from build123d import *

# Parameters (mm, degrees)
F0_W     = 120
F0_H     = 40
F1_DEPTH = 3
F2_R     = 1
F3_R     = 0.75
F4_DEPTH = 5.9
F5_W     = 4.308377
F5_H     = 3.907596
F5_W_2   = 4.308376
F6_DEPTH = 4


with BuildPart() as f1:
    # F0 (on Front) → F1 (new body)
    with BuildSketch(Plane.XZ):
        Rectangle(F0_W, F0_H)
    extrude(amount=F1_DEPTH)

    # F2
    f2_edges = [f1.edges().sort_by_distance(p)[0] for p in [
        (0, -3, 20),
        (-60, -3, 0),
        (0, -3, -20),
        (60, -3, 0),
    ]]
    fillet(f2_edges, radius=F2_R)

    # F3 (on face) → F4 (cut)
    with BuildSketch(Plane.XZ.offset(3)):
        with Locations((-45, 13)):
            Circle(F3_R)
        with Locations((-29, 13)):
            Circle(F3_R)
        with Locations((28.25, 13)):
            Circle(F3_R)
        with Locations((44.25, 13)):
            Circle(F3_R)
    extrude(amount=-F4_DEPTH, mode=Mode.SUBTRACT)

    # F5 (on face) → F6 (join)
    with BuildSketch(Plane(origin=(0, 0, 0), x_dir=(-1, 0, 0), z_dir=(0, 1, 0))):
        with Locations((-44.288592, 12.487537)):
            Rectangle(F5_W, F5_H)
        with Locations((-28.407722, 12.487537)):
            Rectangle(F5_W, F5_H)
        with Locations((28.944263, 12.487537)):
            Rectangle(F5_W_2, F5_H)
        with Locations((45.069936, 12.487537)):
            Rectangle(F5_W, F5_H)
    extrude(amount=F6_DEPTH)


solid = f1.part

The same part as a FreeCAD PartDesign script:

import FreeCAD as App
import Part
import Sketcher


def edges_at(feature, points):
    """Names of the edges that pass closest to the given points."""
    edges = feature.Shape.Edges
    near = lambda p: min(range(len(edges)), key=lambda i: edges[i].distToShape(Part.Vertex(*p))[0])
    return sorted({f"Edge{near(p) + 1}" for p in points})


def add_polygon(sketch, points):
    """Adds a closed chain of lines whose ends are joined by coincident constraints."""
    first, n = sketch.GeometryCount, len(points)
    for a, b in zip(points, points[1:] + points[:1]):
        sketch.addGeometry(Part.LineSegment(App.Vector(*a, 0), App.Vector(*b, 0)), False)
    for i in range(n):
        sketch.addConstraint(Sketcher.Constraint("Coincident", first + i, 2, first + (i + 1) % n, 1))

doc = App.newDocument("Part")
body = doc.addObject("PartDesign::Body", "Body")

# Sketch on XZ plane
sketch1 = body.newObject("Sketcher::SketchObject", "Sketch")
sketch1.AttachmentSupport = (doc.getObject("XZ_Plane"), [""])
sketch1.MapMode = "FlatFace"
add_polygon(sketch1, [(-60, 20), (-60, -20), (60, -20), (60, 20)])  # lines 0-3
sketch1.addConstraint([
    Sketcher.Constraint("Vertical", 0),
    Sketcher.Constraint("Horizontal", 1),
    Sketcher.Constraint("Vertical", 2),
    Sketcher.Constraint("Horizontal", 3),
    Sketcher.Constraint("Symmetric", 0, 2, 2, 2, -1, 1),
    Sketcher.Constraint("DistanceX", 1, 1, 1, 2, 120.0),
    Sketcher.Constraint("DistanceY", 0, 2, 0, 1, 40.0),
])
pad1 = body.newObject("PartDesign::Pad", "Pad")
pad1.Profile = sketch1
pad1.Length = 3
doc.recompute()

fillet = body.newObject("PartDesign::Fillet", "Fillet")
fillet.Base = (pad1, edges_at(pad1, [
    (0, -3, 20),
    (-60, -3, 0),
    (0, -3, -20),
    (60, -3, 0),
]))
fillet.Radius = 1

# Sketch on XZ plane
sketch2 = body.newObject("Sketcher::SketchObject", "Sketch001")
sketch2.AttachmentSupport = (doc.getObject("XZ_Plane"), [""])
sketch2.MapMode = "FlatFace"
sketch2.AttachmentOffset = App.Placement(App.Vector(0, 0, 3), App.Rotation())
sketch2.addGeometry([
    Part.Circle(App.Vector(-45, 13, 0), App.Vector(0, 0, 1), 0.8),
    Part.Circle(App.Vector(-29, 13, 0), App.Vector(0, 0, 1), 0.8),
    Part.Circle(App.Vector(28.2, 13, 0), App.Vector(0, 0, 1), 0.8),
    Part.Circle(App.Vector(44.2, 13, 0), App.Vector(0, 0, 1), 0.8),
], False)
sketch2.addConstraint([
    Sketcher.Constraint("Equal", 0, 1),
    Sketcher.Constraint("Equal", 1, 2),
    Sketcher.Constraint("Equal", 2, 3),
    Sketcher.Constraint("Horizontal", 0, 3, 1, 3),
    Sketcher.Constraint("Horizontal", 1, 3, 2, 3),
    Sketcher.Constraint("Horizontal", 2, 3, 3, 3),
    Sketcher.Constraint("Diameter", 0, 1.5),
    Sketcher.Constraint("DistanceX", 0, 3, -1, 1, 45.0),
    Sketcher.Constraint("DistanceY", -1, 1, 0, 3, 13.0),
    Sketcher.Constraint("DistanceX", 1, 3, -1, 1, 29.0),
    Sketcher.Constraint("DistanceX", 2, 3, 3, 3, 16.0),
    Sketcher.Constraint("DistanceX", -1, 1, 2, 3, 28.25),
])
pocket1 = body.newObject("PartDesign::Pocket", "Pocket")
pocket1.Profile = sketch2
pocket1.Length = 5.9

# Sketch on XZ plane
sketch3 = body.newObject("Sketcher::SketchObject", "Sketch002")
sketch3.AttachmentSupport = (doc.getObject("XZ_Plane"), [""])
sketch3.MapMode = "FlatFace"
add_polygon(sketch3, [(46.4, 14.4), (46.4, 10.5), (42.1, 10.5), (42.1, 14.4)])  # lines 0-3
add_polygon(sketch3, [(30.6, 14.4), (30.6, 10.5), (26.3, 10.5), (26.3, 14.4)])  # lines 4-7
add_polygon(sketch3, [(-26.8, 14.4), (-26.8, 10.5), (-31.1, 10.5), (-31.1, 14.4)])  # lines 8-11
add_polygon(sketch3, [(-42.9, 14.4), (-42.9, 10.5), (-47.2, 10.5), (-47.2, 14.4)])  # lines 12-15
sketch3.addConstraint([
    Sketcher.Constraint("Vertical", 0),
    Sketcher.Constraint("Horizontal", 1),
    Sketcher.Constraint("Vertical", 2),
    Sketcher.Constraint("Horizontal", 3),
    Sketcher.Constraint("Vertical", 4),
    Sketcher.Constraint("Horizontal", 5),
    Sketcher.Constraint("Vertical", 6),
    Sketcher.Constraint("Horizontal", 7),
    Sketcher.Constraint("Vertical", 8),
    Sketcher.Constraint("Horizontal", 9),
    Sketcher.Constraint("Vertical", 10),
    Sketcher.Constraint("Horizontal", 11),
    Sketcher.Constraint("Vertical", 12),
    Sketcher.Constraint("Horizontal", 13),
    Sketcher.Constraint("Vertical", 14),
    Sketcher.Constraint("Horizontal", 15),
    Sketcher.Constraint("Horizontal", 1, 2, 4, 2),
    Sketcher.Constraint("Horizontal", 3, 2, 6, 2),
    Sketcher.Constraint("Horizontal", 5, 2, 8, 2),
    Sketcher.Constraint("Horizontal", 7, 2, 10, 2),
    Sketcher.Constraint("Horizontal", 9, 2, 12, 2),
    Sketcher.Constraint("Horizontal", 11, 2, 14, 2),
    Sketcher.Constraint("Equal", 3, 5),
    Sketcher.Constraint("Equal", 7, 9),
    Sketcher.Constraint("Equal", 11, 13),
    Sketcher.Constraint("DistanceX", 1, 2, 1, 1, 4.308377),
    Sketcher.Constraint("DistanceY", 0, 2, 0, 1, 3.907596),
    Sketcher.Constraint("DistanceX", -1, 1, 0, 2, 46.44278),
    Sketcher.Constraint("DistanceY", -1, 1, 0, 2, 10.533739),
    Sketcher.Constraint("DistanceX", -1, 1, 4, 2, 30.56191),
    Sketcher.Constraint("DistanceX", 9, 2, -1, 1, 31.098451),
    Sketcher.Constraint("DistanceX", 12, 2, 5, 2, 69.169281),
])
pad2 = body.newObject("PartDesign::Pad", "Pad001")
pad2.Profile = sketch3
pad2.Length = 4
pad2.Reversed = True

doc.recompute()
